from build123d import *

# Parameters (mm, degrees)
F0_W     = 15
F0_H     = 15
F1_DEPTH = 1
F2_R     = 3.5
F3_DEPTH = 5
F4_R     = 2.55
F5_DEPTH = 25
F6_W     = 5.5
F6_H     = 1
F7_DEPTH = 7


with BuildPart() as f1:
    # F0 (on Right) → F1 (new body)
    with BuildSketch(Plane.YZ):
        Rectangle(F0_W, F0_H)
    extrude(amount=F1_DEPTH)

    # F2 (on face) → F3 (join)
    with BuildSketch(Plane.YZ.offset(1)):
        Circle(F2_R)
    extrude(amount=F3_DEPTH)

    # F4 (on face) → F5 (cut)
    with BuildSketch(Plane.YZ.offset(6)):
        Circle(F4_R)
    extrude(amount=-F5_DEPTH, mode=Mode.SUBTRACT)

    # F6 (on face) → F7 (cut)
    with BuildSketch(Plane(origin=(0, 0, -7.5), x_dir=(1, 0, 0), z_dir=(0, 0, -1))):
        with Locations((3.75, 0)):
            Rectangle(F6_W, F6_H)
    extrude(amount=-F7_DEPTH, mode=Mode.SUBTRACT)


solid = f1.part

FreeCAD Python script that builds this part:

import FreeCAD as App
import Part
import Sketcher
from FreeCAD import Vector


def add_polygon(sketch, points):
    """Adds a closed chain of lines whose ends are joined by coincident constraints."""
    first, n = sketch.GeometryCount, len(points)
    for a, b in zip(points, points[1:] + points[:1]):
        sketch.addGeometry(Part.LineSegment(App.Vector(*a, 0), App.Vector(*b, 0)), False)
    for i in range(n):
        sketch.addConstraint(Sketcher.Constraint("Coincident", first + i, 2, first + (i + 1) % n, 1))

doc = App.newDocument("Part")
params = doc.addObject("Spreadsheet::Sheet", "Params")
for row, (alias, value) in enumerate([
    ("sketch1_width", "15 mm"),
    ("pad1_length", "1 mm"),
    ("sketch2_diameter", "7 mm"),
    ("pad2_length", "5 mm"),
    ("sketch3_diameter", "5.1 mm"),
    ("pocket1_length", "25 mm"),
    ("sketch4_height", "1 mm"),
    ("sketch4_width", "5.5 mm"),
    ("pocket2_length", "7 mm"),
], start=1):
    params.set(f"A{row}", alias)
    params.set(f"B{row}", "=" + value)
    params.setAlias(f"B{row}", alias)

body = doc.addObject("PartDesign::Body", "Body")

# Sketch on YZ plane
sketch1 = body.newObject("Sketcher::SketchObject", "Sketch")
sketch1.AttachmentSupport = (doc.getObject("YZ_Plane"), [""])
sketch1.MapMode = "FlatFace"
add_polygon(sketch1, [(-7.5, 7.5), (-7.5, -7.5), (7.5, -7.5), (7.5, 7.5)])  # lines 0-3
sketch1.addConstraint(Sketcher.Constraint("Vertical", 0))
sketch1.addConstraint(Sketcher.Constraint("Horizontal", 1))
sketch1.addConstraint(Sketcher.Constraint("Vertical", 2))
sketch1.addConstraint(Sketcher.Constraint("Horizontal", 3))
sketch1.addConstraint(Sketcher.Constraint("Symmetric", 0, 2, 2, 2, -1, 1))
sketch1.addConstraint(Sketcher.Constraint("Equal", 3, 0))
sketch1.addConstraint(Sketcher.Constraint("DistanceX", 1, 1, 1, 2, 15.0))
sketch1.setExpression("Constraints[10]", "Params.sketch1_width")
pad1 = body.newObject("PartDesign::Pad", "Pad")
pad1.Profile = sketch1
pad1.setExpression("Length", "Params.pad1_length")

# Sketch on YZ plane
sketch2 = body.newObject("Sketcher::SketchObject", "Sketch001")
sketch2.AttachmentSupport = (doc.getObject("YZ_Plane"), [""])
sketch2.MapMode = "FlatFace"
sketch2.AttachmentOffset = App.Placement(Vector(0, 0, 1), App.Rotation())
sketch2.addGeometry(Part.Circle(Vector(0, 0, 0), Vector(0, 0, 1), 3.5), False)
sketch2.addConstraint(Sketcher.Constraint("Coincident", 0, 3, -1, 1))
sketch2.addConstraint(Sketcher.Constraint("Diameter", 0, 7.0))
sketch2.setExpression("Constraints[1]", "Params.sketch2_diameter")
pad2 = body.newObject("PartDesign::Pad", "Pad001")
pad2.Profile = sketch2
pad2.setExpression("Length", "Params.pad2_length")

# Sketch on YZ plane
sketch3 = body.newObject("Sketcher::SketchObject", "Sketch002")
sketch3.AttachmentSupport = (doc.getObject("YZ_Plane"), [""])
sketch3.MapMode = "FlatFace"
sketch3.AttachmentOffset = App.Placement(Vector(0, 0, 6), App.Rotation())
sketch3.addGeometry(Part.Circle(Vector(0, 0, 0), Vector(0, 0, 1), 2.55), False)
sketch3.addConstraint(Sketcher.Constraint("Coincident", 0, 3, -1, 1))
sketch3.addConstraint(Sketcher.Constraint("Diameter", 0, 5.1))
sketch3.setExpression("Constraints[1]", "Params.sketch3_diameter")
pocket1 = body.newObject("PartDesign::Pocket", "Pocket")
pocket1.Profile = sketch3
pocket1.setExpression("Length", "Params.pocket1_length")

# Sketch on XY plane
sketch4 = body.newObject("Sketcher::SketchObject", "Sketch003")
sketch4.AttachmentSupport = (doc.getObject("XY_Plane"), [""])
sketch4.MapMode = "FlatFace"
sketch4.AttachmentOffset = App.Placement(Vector(0, 0, -7.5), App.Rotation())
add_polygon(sketch4, [(1, -0.5), (1, 0.5), (6.5, 0.5), (6.5, -0.5)])  # lines 0-3
sketch4.addConstraint(Sketcher.Constraint("Vertical", 0))
sketch4.addConstraint(Sketcher.Constraint("Horizontal", 1))
sketch4.addConstraint(Sketcher.Constraint("Vertical", 2))
sketch4.addConstraint(Sketcher.Constraint("Horizontal", 3))
sketch4.addConstraint(Sketcher.Constraint("DistanceY", 0, 1, 0, 2, 1.0))
sketch4.addConstraint(Sketcher.Constraint("DistanceX", 1, 1, 1, 2, 5.5))
sketch4.addConstraint(Sketcher.Constraint("DistanceX", -1, 1, 0, 2, 1.0))
sketch4.addConstraint(Sketcher.Constraint("DistanceY", -1, 1, 0, 2, 0.5))
sketch4.setExpression("Constraints[8]", "Params.sketch4_height")
sketch4.setExpression("Constraints[9]", "Params.sketch4_width")
pocket2 = body.newObject("PartDesign::Pocket", "Pocket001")
pocket2.Profile = sketch4
pocket2.setExpression("Length", "Params.pocket2_length")
pocket2.Reversed = True

doc.recompute()
